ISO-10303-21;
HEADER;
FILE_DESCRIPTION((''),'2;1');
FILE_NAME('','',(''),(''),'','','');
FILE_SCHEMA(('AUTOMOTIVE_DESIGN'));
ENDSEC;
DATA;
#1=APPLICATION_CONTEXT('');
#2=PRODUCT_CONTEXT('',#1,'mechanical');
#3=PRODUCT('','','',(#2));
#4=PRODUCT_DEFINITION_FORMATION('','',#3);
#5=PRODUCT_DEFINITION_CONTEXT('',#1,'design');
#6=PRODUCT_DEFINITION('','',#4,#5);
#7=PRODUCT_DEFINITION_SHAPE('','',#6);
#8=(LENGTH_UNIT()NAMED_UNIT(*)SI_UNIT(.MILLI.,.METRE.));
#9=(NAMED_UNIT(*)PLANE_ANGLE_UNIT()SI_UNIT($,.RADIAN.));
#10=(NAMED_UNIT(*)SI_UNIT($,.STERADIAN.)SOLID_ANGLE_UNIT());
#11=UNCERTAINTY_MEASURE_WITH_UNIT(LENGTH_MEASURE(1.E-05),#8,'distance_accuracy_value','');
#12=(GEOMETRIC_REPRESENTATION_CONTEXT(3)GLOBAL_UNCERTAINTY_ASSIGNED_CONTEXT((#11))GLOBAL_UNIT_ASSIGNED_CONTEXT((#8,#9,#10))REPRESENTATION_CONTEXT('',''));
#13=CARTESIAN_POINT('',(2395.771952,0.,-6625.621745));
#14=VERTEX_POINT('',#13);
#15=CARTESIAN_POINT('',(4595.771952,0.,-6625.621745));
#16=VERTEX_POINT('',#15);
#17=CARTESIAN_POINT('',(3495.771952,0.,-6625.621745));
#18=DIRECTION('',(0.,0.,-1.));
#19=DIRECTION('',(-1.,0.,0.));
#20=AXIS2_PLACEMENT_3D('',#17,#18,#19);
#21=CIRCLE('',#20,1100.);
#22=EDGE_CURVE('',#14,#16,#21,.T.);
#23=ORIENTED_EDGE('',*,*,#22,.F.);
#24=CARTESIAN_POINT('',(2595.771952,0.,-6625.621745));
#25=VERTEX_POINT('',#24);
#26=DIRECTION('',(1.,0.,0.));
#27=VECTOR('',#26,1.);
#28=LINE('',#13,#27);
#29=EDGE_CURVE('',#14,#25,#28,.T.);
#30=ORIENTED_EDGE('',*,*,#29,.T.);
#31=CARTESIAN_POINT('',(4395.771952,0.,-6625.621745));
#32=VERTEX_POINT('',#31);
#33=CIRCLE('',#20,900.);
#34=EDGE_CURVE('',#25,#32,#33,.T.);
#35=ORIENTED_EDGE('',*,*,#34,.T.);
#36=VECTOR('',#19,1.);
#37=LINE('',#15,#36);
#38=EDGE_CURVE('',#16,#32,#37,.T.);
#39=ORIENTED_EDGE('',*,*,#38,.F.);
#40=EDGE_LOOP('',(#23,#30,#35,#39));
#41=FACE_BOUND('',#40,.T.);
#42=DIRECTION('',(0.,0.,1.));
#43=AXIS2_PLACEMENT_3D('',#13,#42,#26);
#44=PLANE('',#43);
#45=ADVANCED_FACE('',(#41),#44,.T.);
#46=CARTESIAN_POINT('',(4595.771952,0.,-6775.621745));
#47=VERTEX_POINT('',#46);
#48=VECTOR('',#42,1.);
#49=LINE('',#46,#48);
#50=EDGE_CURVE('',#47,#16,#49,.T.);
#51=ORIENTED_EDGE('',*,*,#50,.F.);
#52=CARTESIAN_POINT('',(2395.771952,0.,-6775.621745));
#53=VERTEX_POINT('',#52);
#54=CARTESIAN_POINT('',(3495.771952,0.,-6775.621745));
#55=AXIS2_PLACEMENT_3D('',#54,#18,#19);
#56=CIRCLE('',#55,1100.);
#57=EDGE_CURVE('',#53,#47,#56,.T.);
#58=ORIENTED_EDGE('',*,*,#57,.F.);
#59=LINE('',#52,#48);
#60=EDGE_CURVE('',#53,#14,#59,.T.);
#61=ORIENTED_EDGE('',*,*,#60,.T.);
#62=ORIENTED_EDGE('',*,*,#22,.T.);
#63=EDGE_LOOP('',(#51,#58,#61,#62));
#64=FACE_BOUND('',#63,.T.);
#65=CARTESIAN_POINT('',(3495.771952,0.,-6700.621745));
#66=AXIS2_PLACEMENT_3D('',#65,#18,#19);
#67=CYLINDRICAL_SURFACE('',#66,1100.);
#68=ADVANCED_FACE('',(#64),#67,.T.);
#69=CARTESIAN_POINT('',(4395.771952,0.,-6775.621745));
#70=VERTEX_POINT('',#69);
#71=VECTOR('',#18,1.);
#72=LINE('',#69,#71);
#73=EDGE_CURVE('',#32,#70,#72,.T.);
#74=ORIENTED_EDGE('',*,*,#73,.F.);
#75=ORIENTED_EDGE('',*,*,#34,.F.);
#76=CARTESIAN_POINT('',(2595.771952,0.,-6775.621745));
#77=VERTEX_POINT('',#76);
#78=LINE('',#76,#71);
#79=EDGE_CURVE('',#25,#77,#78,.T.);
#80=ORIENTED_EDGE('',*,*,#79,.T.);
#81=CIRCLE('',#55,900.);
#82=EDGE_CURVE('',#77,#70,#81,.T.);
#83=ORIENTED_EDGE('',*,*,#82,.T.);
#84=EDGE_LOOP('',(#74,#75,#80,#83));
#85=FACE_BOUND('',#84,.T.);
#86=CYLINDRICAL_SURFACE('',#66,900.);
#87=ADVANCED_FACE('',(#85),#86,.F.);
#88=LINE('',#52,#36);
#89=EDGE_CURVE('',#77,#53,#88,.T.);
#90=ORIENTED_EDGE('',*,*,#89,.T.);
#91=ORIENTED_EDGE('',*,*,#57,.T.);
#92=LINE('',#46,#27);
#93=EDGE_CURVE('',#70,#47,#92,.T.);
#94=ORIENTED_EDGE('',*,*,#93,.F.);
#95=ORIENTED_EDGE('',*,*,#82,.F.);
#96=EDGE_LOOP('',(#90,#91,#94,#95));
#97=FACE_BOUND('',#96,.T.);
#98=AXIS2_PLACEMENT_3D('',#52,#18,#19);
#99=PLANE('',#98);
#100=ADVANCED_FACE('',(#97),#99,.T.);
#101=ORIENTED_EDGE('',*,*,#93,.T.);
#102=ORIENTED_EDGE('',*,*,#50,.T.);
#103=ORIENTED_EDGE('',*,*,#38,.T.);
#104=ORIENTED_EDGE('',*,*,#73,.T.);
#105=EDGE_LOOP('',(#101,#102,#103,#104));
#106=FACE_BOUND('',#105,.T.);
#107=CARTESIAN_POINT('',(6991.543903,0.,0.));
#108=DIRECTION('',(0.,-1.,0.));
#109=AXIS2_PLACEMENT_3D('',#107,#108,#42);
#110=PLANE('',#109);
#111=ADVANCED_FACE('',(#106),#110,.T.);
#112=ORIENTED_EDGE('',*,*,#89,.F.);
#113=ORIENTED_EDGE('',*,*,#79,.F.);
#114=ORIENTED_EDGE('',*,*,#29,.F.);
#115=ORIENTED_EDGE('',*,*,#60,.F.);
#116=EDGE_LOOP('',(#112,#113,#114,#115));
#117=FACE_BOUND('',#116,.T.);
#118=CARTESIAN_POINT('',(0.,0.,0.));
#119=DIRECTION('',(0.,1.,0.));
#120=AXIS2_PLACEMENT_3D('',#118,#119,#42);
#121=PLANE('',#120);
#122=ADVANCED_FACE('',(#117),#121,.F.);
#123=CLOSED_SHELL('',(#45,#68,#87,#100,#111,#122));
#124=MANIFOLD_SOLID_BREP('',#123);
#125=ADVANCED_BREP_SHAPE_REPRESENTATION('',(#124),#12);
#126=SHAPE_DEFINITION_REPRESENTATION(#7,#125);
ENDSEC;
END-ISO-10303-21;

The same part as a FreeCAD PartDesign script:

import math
import FreeCAD as App
import Part
import Sketcher
Q = App.Units.Quantity


def add_polygon(sketch, points):
    """Adds a closed chain of lines whose ends are joined by coincident constraints."""
    first, n = sketch.GeometryCount, len(points)
    for a, b in zip(points, points[1:] + points[:1]):
        sketch.addGeometry(Part.LineSegment(App.Vector(*a, 0), App.Vector(*b, 0)), False)
    for i in range(n):
        sketch.addConstraint(Sketcher.Constraint("Coincident", first + i, 2, first + (i + 1) % n, 1))

doc = App.newDocument("Part")
params = doc.addObject("Spreadsheet::Sheet", "Params")
for row, (alias, value) in enumerate([
    ("sketch1_width", "200 mm"),
    ("sketch1_height", "150 mm"),
    ("sketch2_radius", "1000 mm"),
], start=1):
    params.set(f"A{row}", alias)
    params.set(f"B{row}", "=" + value)
    params.setAlias(f"B{row}", alias)

body = doc.addObject("PartDesign::Body", "Body")

# Sketch on XZ plane
sketch1 = doc.addObject("Sketcher::SketchObject", "Sketch")
body.addObject(sketch1)
sketch1.AttachmentSupport = (doc.XZ_Plane, [""])
sketch1.MapMode = "FlatFace"
add_polygon(sketch1, [(2396, -6776), (2396, -6626), (2596, -6626), (2596, -6776)])  # lines 0-3
sketch1.addConstraint(Sketcher.Constraint("Vertical", 0))
sketch1.addConstraint(Sketcher.Constraint("Horizontal", 1))
sketch1.addConstraint(Sketcher.Constraint("Vertical", 2))
sketch1.addConstraint(Sketcher.Constraint("Horizontal", 3))
sketch1.addConstraint(Sketcher.Constraint("DistanceX", 1, 1, 1, 2, Q("200 mm")))
sketch1.addConstraint(Sketcher.Constraint("DistanceY", 0, 1, 0, 2, Q("150 mm")))
sketch1.addConstraint(Sketcher.Constraint("DistanceX", -1, 1, 0, 2, Q("2395.771952 mm")))
sketch1.addConstraint(Sketcher.Constraint("DistanceY", 0, 2, -1, 1, Q("6625.621745 mm")))
sketch1.setExpression("Constraints[8]", "Params.sketch1_width")
sketch1.setExpression("Constraints[9]", "Params.sketch1_height")

# Sketch on XY plane
sketch2 = doc.addObject("Sketcher::SketchObject", "Sketch001")
body.addObject(sketch2)
sketch2.AttachmentSupport = (doc.XY_Plane, [""])
sketch2.MapMode = "FlatFace"
sketch2.AttachmentOffset = App.Placement(App.Vector(0, 0, -6700.621745), App.Rotation())
sketch2.addGeometry(Part.ArcOfCircle(Part.Circle(App.Vector(3496, 0, 0), App.Vector(0, 0, 1), 1000), math.radians(0), math.radians(180)), False)
sketch2.addConstraint(Sketcher.Constraint("PointOnObject", 0, 3, -1))
sketch2.addConstraint(Sketcher.Constraint("PointOnObject", 0, 1, -1))
sketch2.addConstraint(Sketcher.Constraint("PointOnObject", 0, 2, -1))
sketch2.addConstraint(Sketcher.Constraint("Radius", 0, Q("1000 mm")))
sketch2.addConstraint(Sketcher.Constraint("DistanceX", -1, 1, 0, 3, Q("3495.771952 mm")))
sketch2.setExpression("Constraints[3]", "Params.sketch2_radius")
doc.recompute()

additivepipe = doc.addObject("PartDesign::AdditivePipe", "AdditivePipe")
body.addObject(additivepipe)
additivepipe.Profile = sketch1
additivepipe.Spine = (sketch2, ["Edge1"])

doc.recompute()
